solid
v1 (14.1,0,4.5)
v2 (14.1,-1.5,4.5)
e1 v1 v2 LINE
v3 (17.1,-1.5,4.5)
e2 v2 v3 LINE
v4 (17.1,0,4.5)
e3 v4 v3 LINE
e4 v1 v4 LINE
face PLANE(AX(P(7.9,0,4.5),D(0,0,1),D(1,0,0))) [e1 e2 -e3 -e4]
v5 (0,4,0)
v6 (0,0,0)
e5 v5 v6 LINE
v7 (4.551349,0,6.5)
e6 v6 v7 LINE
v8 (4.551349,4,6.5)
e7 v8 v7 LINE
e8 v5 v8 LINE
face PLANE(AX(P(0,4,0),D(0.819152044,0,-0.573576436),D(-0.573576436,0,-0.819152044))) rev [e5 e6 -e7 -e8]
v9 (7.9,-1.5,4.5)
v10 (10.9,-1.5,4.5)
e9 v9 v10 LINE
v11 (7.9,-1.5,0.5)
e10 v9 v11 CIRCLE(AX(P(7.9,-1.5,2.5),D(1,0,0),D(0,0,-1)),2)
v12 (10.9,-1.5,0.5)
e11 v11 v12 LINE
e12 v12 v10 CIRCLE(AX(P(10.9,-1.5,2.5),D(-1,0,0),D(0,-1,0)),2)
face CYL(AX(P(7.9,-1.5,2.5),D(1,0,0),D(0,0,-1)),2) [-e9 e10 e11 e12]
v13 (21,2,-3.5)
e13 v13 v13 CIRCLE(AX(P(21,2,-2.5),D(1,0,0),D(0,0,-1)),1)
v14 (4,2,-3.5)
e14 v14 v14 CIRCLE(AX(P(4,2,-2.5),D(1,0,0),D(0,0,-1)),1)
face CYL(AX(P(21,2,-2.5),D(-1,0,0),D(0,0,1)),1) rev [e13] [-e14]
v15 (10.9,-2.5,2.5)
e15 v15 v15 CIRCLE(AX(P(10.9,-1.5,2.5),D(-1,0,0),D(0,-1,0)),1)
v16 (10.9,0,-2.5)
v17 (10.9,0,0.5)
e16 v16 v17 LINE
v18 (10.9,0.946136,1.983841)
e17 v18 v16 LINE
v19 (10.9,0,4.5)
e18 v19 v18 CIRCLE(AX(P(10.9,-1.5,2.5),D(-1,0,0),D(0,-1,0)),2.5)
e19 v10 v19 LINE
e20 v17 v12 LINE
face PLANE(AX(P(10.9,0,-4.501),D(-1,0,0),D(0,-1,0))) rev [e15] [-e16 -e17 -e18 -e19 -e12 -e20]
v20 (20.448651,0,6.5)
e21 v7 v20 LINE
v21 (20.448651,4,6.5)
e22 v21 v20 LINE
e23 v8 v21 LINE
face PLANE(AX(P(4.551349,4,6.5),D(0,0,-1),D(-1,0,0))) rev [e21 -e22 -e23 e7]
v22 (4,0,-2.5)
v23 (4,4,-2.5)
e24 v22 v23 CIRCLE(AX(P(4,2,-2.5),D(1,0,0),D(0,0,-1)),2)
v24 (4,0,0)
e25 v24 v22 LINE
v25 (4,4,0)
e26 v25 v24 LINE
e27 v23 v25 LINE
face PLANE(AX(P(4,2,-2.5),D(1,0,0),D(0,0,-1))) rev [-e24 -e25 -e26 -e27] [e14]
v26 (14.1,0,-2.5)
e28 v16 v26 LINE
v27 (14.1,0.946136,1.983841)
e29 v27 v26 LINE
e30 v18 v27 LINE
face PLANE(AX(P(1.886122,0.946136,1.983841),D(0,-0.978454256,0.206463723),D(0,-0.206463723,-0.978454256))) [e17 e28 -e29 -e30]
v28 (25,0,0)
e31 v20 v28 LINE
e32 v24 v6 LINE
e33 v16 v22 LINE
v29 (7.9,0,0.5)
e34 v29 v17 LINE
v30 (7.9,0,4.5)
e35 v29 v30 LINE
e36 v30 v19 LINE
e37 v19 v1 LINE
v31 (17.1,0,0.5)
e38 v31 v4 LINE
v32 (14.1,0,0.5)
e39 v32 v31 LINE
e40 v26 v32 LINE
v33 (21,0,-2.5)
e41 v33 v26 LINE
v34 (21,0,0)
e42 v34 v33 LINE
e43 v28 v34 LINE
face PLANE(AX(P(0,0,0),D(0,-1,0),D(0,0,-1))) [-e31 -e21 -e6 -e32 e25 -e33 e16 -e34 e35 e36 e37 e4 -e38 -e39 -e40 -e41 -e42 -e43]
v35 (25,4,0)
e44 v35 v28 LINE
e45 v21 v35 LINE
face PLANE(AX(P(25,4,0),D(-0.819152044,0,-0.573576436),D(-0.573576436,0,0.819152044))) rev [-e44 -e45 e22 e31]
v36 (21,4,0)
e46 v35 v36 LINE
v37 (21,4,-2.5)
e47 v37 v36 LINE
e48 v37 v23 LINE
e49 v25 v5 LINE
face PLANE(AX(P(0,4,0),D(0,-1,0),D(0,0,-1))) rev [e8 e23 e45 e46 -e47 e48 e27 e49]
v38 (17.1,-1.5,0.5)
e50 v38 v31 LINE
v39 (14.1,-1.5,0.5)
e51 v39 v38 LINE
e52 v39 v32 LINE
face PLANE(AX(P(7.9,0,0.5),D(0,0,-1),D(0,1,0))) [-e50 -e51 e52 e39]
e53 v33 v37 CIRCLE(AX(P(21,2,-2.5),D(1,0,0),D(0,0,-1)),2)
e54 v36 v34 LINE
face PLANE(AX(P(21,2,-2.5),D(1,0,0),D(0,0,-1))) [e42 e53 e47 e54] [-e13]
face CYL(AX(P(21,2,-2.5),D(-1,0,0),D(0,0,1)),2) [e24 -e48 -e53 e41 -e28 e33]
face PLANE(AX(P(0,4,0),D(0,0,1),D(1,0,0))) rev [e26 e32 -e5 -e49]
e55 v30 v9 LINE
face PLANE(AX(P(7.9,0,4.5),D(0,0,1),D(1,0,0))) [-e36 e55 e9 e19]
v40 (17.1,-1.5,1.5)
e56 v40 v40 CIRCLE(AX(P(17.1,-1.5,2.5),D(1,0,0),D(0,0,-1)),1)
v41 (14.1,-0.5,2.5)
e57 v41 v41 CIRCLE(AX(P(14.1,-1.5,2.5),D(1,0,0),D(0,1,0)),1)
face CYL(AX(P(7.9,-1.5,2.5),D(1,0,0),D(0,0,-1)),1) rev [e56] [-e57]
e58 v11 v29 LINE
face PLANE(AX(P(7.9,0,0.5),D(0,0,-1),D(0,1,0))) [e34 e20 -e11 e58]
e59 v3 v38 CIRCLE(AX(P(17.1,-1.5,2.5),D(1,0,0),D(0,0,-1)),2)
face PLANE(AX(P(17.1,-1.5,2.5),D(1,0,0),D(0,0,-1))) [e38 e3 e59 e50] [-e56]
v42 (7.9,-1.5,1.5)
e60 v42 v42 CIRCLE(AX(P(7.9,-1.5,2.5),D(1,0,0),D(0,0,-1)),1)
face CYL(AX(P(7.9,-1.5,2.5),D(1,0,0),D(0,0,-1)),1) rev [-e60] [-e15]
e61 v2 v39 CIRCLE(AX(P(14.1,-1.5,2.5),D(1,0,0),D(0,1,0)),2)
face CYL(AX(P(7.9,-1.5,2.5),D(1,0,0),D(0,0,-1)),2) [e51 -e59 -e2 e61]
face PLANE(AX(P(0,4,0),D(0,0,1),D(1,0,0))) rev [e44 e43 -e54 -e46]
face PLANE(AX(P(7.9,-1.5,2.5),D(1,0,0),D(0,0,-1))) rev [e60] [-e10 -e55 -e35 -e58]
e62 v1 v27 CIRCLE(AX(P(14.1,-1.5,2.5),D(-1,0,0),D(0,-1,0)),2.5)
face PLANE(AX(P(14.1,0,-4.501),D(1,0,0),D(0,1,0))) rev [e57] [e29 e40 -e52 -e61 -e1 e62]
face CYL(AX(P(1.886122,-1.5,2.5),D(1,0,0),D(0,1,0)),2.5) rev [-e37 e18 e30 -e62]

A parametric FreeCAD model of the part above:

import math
import FreeCAD as App
import Part
import Sketcher
Q = App.Units.Quantity

doc = App.newDocument("Part")
body = doc.addObject("PartDesign::Body", "Body")

# Sketch on XZ plane
sketch1 = body.newObject("Sketcher::SketchObject", "Sketch")
sketch1.AttachmentSupport = (doc.getObject("XZ_Plane"), [""])
sketch1.MapMode = "FlatFace"
sketch1.addGeometry([
    Part.LineSegment(App.Vector(0, 0, 0), App.Vector(5, 6, 0)),
    Part.LineSegment(App.Vector(5, 6, 0), App.Vector(20, 6, 0)),
    Part.LineSegment(App.Vector(20, 6, 0), App.Vector(25, 0, 0)),
    Part.LineSegment(App.Vector(25, 0, 0), App.Vector(0, 0, 0)),
], False)
sketch1.addConstraint([
    Sketcher.Constraint("Coincident", 0, 2, 1, 1),
    Sketcher.Constraint("Coincident", 1, 2, 2, 1),
    Sketcher.Constraint("Coincident", 2, 2, 3, 1),
    Sketcher.Constraint("Coincident", 3, 2, 0, 1),
    Sketcher.Constraint("Horizontal", 1),
    Sketcher.Constraint("Horizontal", 3),
    Sketcher.Constraint("Coincident", 3, 2, -1, 1),
    Sketcher.Constraint("Equal", 0, 2),
    Sketcher.Constraint("DistanceX", 3, 2, 3, 1, 25.0),
    Sketcher.Constraint("Angle", 0, Q("55 deg")),
    Sketcher.Constraint("DistanceY", -1, 1, 0, 2, 6.5),
])
pad1 = body.newObject("PartDesign::Pad", "Pad")
pad1.Profile = sketch1
pad1.Length = 4
pad1.Reversed = True

# Sketch on YZ plane
sketch2 = body.newObject("Sketcher::SketchObject", "Sketch001")
sketch2.AttachmentSupport = (doc.getObject("YZ_Plane"), [""])
sketch2.MapMode = "FlatFace"
sketch2.AttachmentOffset = App.Placement(App.Vector(0, 0, 4), App.Rotation())
sketch2.addGeometry([
    Part.LineSegment(App.Vector(0, 0, 0), App.Vector(0, -2.5, 0)),  # 0
    Part.ArcOfCircle(Part.Circle(App.Vector(2, -2.5, 0), App.Vector(0, 0, 1), 2), math.radians(180), math.radians(360)),  # 1
    Part.LineSegment(App.Vector(4, -2.5, 0), App.Vector(4, 0, 0)),  # 2
    Part.LineSegment(App.Vector(4, 0, 0), App.Vector(0, 0, 0)),  # 3
    Part.Circle(App.Vector(2, -2.5, 0), App.Vector(0, 0, 1), 1),  # 4
], False)
sketch2.addConstraint([
    Sketcher.Constraint("Tangent", 0, 2, 1, 1),
    Sketcher.Constraint("Tangent", 1, 2, 2, 1),
    Sketcher.Constraint("Coincident", 2, 2, 3, 1),
    Sketcher.Constraint("Coincident", 3, 2, 0, 1),
    Sketcher.Constraint("Vertical", 0),
    Sketcher.Constraint("Vertical", 2),
    Sketcher.Constraint("Horizontal", 3),
    Sketcher.Constraint("Coincident", 3, 2, -1, 1),
    Sketcher.Constraint("Coincident", 4, 3, 1, 3),
    Sketcher.Constraint("Diameter", 4, 2.0),
    Sketcher.Constraint("Radius", 1, 2.0),
    Sketcher.Constraint("DistanceY", 0, 2, 0, 1, 2.5),
])
pad2 = body.newObject("PartDesign::Pad", "Pad001")
pad2.Profile = sketch2
pad2.Length = 17

# Sketch on YZ plane
sketch3 = body.newObject("Sketcher::SketchObject", "Sketch002")
sketch3.AttachmentSupport = (doc.getObject("YZ_Plane"), [""])
sketch3.MapMode = "FlatFace"
sketch3.AttachmentOffset = App.Placement(App.Vector(0, 0, 12.5), App.Rotation())
sketch3.addGeometry([
    Part.LineSegment(App.Vector(0, 0.5, 0), App.Vector(0, 4.5, 0)),  # 0
    Part.LineSegment(App.Vector(0, 4.5, 0), App.Vector(-1.5, 4.5, 0)),  # 1
    Part.ArcOfCircle(Part.Circle(App.Vector(-1.5, 2.5, 0), App.Vector(0, 0, 1), 2), math.radians(90), math.radians(270)),  # 2
    Part.LineSegment(App.Vector(-1.5, 0.5, 0), App.Vector(0, 0.5, 0)),  # 3
    Part.Circle(App.Vector(-1.5, 2.5, 0), App.Vector(0, 0, 1), 1),  # 4
], False)
sketch3.addConstraint([
    Sketcher.Constraint("Coincident", 0, 2, 1, 1),
    Sketcher.Constraint("Tangent", 1, 2, 2, 1),
    Sketcher.Constraint("Tangent", 2, 2, 3, 1),
    Sketcher.Constraint("Coincident", 3, 2, 0, 1),
    Sketcher.Constraint("Vertical", 0),
    Sketcher.Constraint("Horizontal", 1),
    Sketcher.Constraint("Horizontal", 3),
    Sketcher.Constraint("Coincident", 4, 3, 2, 3),
    Sketcher.Constraint("PointOnObject", 0, 2, -2),
    Sketcher.Constraint("Diameter", 4, 2.0),
    Sketcher.Constraint("Radius", 2, 2.0),
    Sketcher.Constraint("DistanceX", 1, 2, 1, 1, 1.5),
    Sketcher.Constraint("DistanceY", -1, 1, 2, 3, 2.5),
])
pad3 = body.newObject("PartDesign::Pad", "Pad002")
pad3.Profile = sketch3
pad3.Type = "TwoLengths"
pad3.Length = 4.6
pad3.Length2 = 4.6

# Sketch on XY plane
sketch4 = body.newObject("Sketcher::SketchObject", "Sketch003")
sketch4.AttachmentSupport = (doc.getObject("XY_Plane"), [""])
sketch4.MapMode = "FlatFace"
sketch4.AttachmentOffset = App.Placement(App.Vector(0, 0, 6.5), App.Rotation())
sketch4.addGeometry([
    Part.LineSegment(App.Vector(10.9, 0, 0), App.Vector(10.9, -3.5, 0)),
    Part.LineSegment(App.Vector(10.9, -3.5, 0), App.Vector(14.1, -3.5, 0)),
    Part.LineSegment(App.Vector(14.1, -3.5, 0), App.Vector(14.1, 0, 0)),
    Part.LineSegment(App.Vector(14.1, 0, 0), App.Vector(10.9, 0, 0)),
], False)
sketch4.addConstraint([
    Sketcher.Constraint("Coincident", 0, 2, 1, 1),
    Sketcher.Constraint("Coincident", 1, 2, 2, 1),
    Sketcher.Constraint("Coincident", 2, 2, 3, 1),
    Sketcher.Constraint("Coincident", 3, 2, 0, 1),
    Sketcher.Constraint("Vertical", 0),
    Sketcher.Constraint("Horizontal", 1),
    Sketcher.Constraint("Vertical", 2),
    Sketcher.Constraint("Horizontal", 3),
    Sketcher.Constraint("PointOnObject", 2, 2, -1),
    Sketcher.Constraint("DistanceX", 1, 1, 1, 2, 3.2),
    Sketcher.Constraint("DistanceY", 0, 2, 0, 1, 3.5),
    Sketcher.Constraint("DistanceX", -1, 1, 0, 2, 10.9),
])
pocket1 = body.newObject("PartDesign::Pocket", "Pocket")
pocket1.Profile = sketch4
pocket1.Length = 6

# Sketch on YZ plane
sketch5 = body.newObject("Sketcher::SketchObject", "Sketch004")
sketch5.AttachmentSupport = (doc.getObject("YZ_Plane"), [""])
sketch5.MapMode = "FlatFace"
sketch5.AttachmentOffset = App.Placement(App.Vector(0, 0, 14.1), App.Rotation())
sketch5.addGeometry([
    Part.LineSegment(App.Vector(0.9, 2, 0), App.Vector(0, -2.5, 0)),
    Part.LineSegment(App.Vector(0, -2.5, 0), App.Vector(0, 0.5, 0)),
    Part.ArcOfCircle(Part.Circle(App.Vector(-1.5, 2.5, 0), App.Vector(0, 0, 1), 2.5), math.radians(-12), math.radians(307)),
], False)
sketch5.addConstraint([
    Sketcher.Constraint("Coincident", 0, 2, 1, 1),
    Sketcher.Constraint("Coincident", 1, 2, 2, 2),
    Sketcher.Constraint("Tangent", 2, 1, 0, 1),
    Sketcher.Constraint("Vertical", 1),
    Sketcher.Constraint("PointOnObject", 0, 2, -2),
    Sketcher.Constraint("Radius", 2, 2.5),
    Sketcher.Constraint("DistanceY", 1, 1, 1, 2, 3.0),
    Sketcher.Constraint("DistanceY", 0, 2, 2, 3, 5.0),
    Sketcher.Constraint("DistanceY", -1, 1, 2, 3, 2.5),
])
pocket2 = body.newObject("PartDesign::Pocket", "Pocket001")
pocket2.Profile = sketch5
pocket2.Length = 3.2

doc.recompute()
